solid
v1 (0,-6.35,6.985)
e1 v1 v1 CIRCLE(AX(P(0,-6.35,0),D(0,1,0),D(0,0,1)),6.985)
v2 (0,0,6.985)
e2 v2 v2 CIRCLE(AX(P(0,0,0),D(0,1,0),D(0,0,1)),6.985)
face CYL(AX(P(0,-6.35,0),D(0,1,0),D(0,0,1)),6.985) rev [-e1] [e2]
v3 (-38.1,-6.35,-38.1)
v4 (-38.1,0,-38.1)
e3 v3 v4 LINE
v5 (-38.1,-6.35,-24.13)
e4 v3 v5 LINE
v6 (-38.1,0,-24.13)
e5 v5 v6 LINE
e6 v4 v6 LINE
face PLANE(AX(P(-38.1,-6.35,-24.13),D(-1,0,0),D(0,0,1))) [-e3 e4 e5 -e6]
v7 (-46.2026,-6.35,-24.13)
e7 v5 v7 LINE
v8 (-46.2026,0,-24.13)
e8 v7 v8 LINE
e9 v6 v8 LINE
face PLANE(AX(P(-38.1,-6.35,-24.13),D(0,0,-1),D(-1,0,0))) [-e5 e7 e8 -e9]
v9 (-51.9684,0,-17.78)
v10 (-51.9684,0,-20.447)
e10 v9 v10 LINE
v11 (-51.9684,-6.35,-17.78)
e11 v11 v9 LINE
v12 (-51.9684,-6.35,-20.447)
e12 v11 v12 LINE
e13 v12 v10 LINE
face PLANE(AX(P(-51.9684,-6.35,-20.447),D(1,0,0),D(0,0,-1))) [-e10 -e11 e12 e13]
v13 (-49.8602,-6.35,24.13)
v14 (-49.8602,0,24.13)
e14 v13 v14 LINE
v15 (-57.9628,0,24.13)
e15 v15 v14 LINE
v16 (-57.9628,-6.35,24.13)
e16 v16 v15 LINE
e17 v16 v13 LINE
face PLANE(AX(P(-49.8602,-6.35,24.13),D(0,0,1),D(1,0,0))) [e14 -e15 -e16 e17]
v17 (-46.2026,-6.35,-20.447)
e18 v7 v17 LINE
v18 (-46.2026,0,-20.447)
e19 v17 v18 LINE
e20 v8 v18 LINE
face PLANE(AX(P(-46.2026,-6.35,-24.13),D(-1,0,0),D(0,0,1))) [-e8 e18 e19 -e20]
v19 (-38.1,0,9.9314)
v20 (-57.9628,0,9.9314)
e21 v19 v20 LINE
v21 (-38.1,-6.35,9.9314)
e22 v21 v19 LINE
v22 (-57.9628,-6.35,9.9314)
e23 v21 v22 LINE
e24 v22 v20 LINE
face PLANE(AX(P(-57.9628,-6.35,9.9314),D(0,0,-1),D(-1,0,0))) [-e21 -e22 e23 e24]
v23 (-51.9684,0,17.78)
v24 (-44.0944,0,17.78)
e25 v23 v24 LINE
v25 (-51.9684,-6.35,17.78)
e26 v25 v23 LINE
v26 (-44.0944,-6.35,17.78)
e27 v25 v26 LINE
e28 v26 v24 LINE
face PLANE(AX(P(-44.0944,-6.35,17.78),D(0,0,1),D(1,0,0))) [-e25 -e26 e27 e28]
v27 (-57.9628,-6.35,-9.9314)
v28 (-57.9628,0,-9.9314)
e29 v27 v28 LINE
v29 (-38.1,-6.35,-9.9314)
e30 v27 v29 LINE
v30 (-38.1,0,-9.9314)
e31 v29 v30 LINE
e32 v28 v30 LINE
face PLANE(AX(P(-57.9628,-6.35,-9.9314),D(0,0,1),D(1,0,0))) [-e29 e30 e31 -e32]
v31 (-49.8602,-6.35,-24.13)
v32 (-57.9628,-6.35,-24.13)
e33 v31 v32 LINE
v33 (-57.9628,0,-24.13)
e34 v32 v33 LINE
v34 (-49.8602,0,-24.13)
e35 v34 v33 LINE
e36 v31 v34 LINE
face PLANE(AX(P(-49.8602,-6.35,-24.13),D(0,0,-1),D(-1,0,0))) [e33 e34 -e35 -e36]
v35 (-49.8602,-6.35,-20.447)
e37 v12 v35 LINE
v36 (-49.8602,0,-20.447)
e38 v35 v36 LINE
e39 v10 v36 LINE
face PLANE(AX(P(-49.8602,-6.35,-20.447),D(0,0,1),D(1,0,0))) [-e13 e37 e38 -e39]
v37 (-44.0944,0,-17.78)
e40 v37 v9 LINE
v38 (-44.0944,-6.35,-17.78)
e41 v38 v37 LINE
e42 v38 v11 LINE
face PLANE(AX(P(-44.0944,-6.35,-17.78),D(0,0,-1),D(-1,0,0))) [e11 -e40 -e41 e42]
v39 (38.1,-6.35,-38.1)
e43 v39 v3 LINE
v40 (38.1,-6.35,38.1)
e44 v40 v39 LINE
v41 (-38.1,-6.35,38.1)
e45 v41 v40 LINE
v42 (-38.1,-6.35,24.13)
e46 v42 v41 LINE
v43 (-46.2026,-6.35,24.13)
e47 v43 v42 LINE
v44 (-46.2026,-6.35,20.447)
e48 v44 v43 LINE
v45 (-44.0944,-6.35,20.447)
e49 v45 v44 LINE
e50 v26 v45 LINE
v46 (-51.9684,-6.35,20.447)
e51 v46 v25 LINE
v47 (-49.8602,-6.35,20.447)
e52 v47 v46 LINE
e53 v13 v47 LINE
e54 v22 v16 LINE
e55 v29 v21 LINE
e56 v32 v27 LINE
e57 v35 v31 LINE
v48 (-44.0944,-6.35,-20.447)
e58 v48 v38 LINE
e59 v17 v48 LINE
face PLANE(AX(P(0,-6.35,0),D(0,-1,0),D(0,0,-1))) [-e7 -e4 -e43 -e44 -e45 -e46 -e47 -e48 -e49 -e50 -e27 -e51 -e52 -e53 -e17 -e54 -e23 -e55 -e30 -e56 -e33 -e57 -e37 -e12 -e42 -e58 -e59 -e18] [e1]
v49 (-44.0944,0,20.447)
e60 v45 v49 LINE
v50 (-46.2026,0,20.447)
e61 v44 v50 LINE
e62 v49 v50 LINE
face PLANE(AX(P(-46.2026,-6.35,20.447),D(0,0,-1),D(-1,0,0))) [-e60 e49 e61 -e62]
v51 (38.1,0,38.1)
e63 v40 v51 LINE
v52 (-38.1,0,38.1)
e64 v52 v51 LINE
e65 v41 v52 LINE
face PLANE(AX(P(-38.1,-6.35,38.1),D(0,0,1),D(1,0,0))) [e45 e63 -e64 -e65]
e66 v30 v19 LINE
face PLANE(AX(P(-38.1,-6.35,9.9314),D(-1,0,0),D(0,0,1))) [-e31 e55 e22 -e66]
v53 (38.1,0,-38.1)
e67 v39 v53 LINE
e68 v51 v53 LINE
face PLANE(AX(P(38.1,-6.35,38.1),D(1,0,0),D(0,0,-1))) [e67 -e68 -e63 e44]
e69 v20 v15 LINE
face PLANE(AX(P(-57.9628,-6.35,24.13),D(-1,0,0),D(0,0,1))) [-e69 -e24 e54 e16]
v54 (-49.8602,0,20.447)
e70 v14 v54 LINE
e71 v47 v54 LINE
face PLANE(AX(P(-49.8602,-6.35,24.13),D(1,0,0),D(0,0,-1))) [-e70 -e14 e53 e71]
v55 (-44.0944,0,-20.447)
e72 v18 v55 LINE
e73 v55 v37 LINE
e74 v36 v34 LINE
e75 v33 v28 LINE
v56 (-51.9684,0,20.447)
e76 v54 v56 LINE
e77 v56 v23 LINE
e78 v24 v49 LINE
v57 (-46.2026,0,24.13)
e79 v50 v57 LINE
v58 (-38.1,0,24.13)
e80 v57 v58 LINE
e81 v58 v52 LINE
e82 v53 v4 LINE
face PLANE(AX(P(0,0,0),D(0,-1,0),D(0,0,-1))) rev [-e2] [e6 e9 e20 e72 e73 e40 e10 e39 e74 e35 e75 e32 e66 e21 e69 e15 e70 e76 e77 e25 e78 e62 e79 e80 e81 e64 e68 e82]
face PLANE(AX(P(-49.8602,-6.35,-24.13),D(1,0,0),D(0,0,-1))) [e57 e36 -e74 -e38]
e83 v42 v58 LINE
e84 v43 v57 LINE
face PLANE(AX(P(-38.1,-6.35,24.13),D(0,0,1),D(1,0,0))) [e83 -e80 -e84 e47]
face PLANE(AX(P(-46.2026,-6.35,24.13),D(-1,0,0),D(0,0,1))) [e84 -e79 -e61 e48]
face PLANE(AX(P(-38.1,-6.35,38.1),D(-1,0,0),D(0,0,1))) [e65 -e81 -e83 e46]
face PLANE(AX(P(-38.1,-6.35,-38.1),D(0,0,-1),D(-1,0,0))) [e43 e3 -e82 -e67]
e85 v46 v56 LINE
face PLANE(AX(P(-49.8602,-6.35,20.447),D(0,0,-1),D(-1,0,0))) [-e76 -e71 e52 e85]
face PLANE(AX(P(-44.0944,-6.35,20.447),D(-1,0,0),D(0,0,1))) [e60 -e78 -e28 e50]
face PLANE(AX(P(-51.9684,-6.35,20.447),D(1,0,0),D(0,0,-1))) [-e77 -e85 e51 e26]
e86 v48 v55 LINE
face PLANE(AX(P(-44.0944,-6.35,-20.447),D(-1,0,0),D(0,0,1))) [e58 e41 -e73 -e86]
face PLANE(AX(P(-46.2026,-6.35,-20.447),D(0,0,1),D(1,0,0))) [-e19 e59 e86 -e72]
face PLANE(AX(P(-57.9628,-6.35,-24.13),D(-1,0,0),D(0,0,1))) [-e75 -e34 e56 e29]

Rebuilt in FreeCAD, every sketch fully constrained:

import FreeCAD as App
import Part
import Sketcher
from FreeCAD import Vector
Q = App.Units.Quantity

doc = App.newDocument("Part")
params = doc.addObject("Spreadsheet::Sheet", "Params")
for row, (alias, value) in enumerate([
    ("sketch1_diameter", "0.55 in"),
    ("sketch1_width", "3 in"),
    ("sketch1_width2", "0.31 in"),
    ("sketch1_height", "0.55 in"),
    ("sketch1_width3", "0.319 in"),
    ("pad1_length", "0.25 in"),
], start=1):
    params.set(f"A{row}", alias)
    params.set(f"B{row}", "=" + value)
    params.setAlias(f"B{row}", alias)

body = doc.addObject("PartDesign::Body", "Body")

# Sketch on XZ plane
sketch1 = body.newObject("Sketcher::SketchObject", "Sketch")
sketch1.AttachmentSupport = (doc.getObject("XZ_Plane"), [""])
sketch1.MapMode = "FlatFace"
sketch1.addGeometry([
    Part.LineSegment(Vector(-38.1, 38.1, 0), Vector(38.1, 38.1, 0)),  # 0
    Part.LineSegment(Vector(38.1, 38.1, 0), Vector(38.1, -38.1, 0)),  # 1
    Part.LineSegment(Vector(38.1, -38.1, 0), Vector(-38.1, -38.1, 0)),  # 2
    Part.LineSegment(Vector(-38.1, -38.1, 0), Vector(-38.1, -24.13, 0)),  # 3
    Part.LineSegment(Vector(-38.1, -24.13, 0), Vector(-46.2026, -24.13, 0)),  # 4
    Part.LineSegment(Vector(-46.2026, -24.13, 0), Vector(-46.2026, -20.447, 0)),  # 5
    Part.LineSegment(Vector(-46.2026, -20.447, 0), Vector(-44.0944, -20.447, 0)),  # 6
    Part.LineSegment(Vector(-44.0944, -20.447, 0), Vector(-44.0944, -17.78, 0)),  # 7
    Part.LineSegment(Vector(-44.0944, -17.78, 0), Vector(-51.9684, -17.78, 0)),  # 8
    Part.LineSegment(Vector(-51.9684, -17.78, 0), Vector(-51.9684, -20.447, 0)),  # 9
    Part.LineSegment(Vector(-51.9684, -20.447, 0), Vector(-49.8602, -20.447, 0)),  # 10
    Part.LineSegment(Vector(-49.8602, -20.447, 0), Vector(-49.8602, -24.13, 0)),  # 11
    Part.LineSegment(Vector(-49.8602, -24.13, 0), Vector(-57.9628, -24.13, 0)),  # 12
    Part.LineSegment(Vector(-57.9628, -24.13, 0), Vector(-57.9628, -9.9314, 0)),  # 13
    Part.LineSegment(Vector(-57.9628, -9.9314, 0), Vector(-38.1, -9.9314, 0)),  # 14
    Part.LineSegment(Vector(-38.1, -9.9314, 0), Vector(-38.1, 9.9314, 0)),  # 15
    Part.LineSegment(Vector(-38.1, 9.9314, 0), Vector(-57.9628, 9.9314, 0)),  # 16
    Part.LineSegment(Vector(-57.9628, 9.9314, 0), Vector(-57.9628, 24.13, 0)),  # 17
    Part.LineSegment(Vector(-57.9628, 24.13, 0), Vector(-49.8602, 24.13, 0)),  # 18
    Part.LineSegment(Vector(-49.8602, 24.13, 0), Vector(-49.8602, 20.447, 0)),  # 19
    Part.LineSegment(Vector(-49.8602, 20.447, 0), Vector(-51.9684, 20.447, 0)),  # 20
    Part.LineSegment(Vector(-51.9684, 20.447, 0), Vector(-51.9684, 17.78, 0)),  # 21
    Part.LineSegment(Vector(-51.9684, 17.78, 0), Vector(-44.0944, 17.78, 0)),  # 22
    Part.LineSegment(Vector(-44.0944, 17.78, 0), Vector(-44.0944, 20.447, 0)),  # 23
    Part.LineSegment(Vector(-44.0944, 20.447, 0), Vector(-46.2026, 20.447, 0)),  # 24
    Part.LineSegment(Vector(-46.2026, 20.447, 0), Vector(-46.2026, 24.13, 0)),  # 25
    Part.LineSegment(Vector(-46.2026, 24.13, 0), Vector(-38.1, 24.13, 0)),  # 26
    Part.LineSegment(Vector(-38.1, 24.13, 0), Vector(-38.1, 38.1, 0)),  # 27
    Part.Circle(Vector(0, 0, 0), Vector(0, 0, 1), 6.985),  # 28
], False)
sketch1.addConstraint([
    Sketcher.Constraint("Coincident", 0, 2, 1, 1),
    Sketcher.Constraint("Coincident", 1, 2, 2, 1),
    Sketcher.Constraint("Coincident", 2, 2, 3, 1),
    Sketcher.Constraint("Coincident", 3, 2, 4, 1),
    Sketcher.Constraint("Coincident", 4, 2, 5, 1),
    Sketcher.Constraint("Coincident", 5, 2, 6, 1),
    Sketcher.Constraint("Coincident", 6, 2, 7, 1),
    Sketcher.Constraint("Coincident", 7, 2, 8, 1),
    Sketcher.Constraint("Coincident", 8, 2, 9, 1),
    Sketcher.Constraint("Coincident", 9, 2, 10, 1),
    Sketcher.Constraint("Coincident", 10, 2, 11, 1),
    Sketcher.Constraint("Coincident", 11, 2, 12, 1),
    Sketcher.Constraint("Coincident", 12, 2, 13, 1),
    Sketcher.Constraint("Coincident", 13, 2, 14, 1),
    Sketcher.Constraint("Coincident", 14, 2, 15, 1),
    Sketcher.Constraint("Coincident", 15, 2, 16, 1),
    Sketcher.Constraint("Coincident", 16, 2, 17, 1),
    Sketcher.Constraint("Coincident", 17, 2, 18, 1),
    Sketcher.Constraint("Coincident", 18, 2, 19, 1),
    Sketcher.Constraint("Coincident", 19, 2, 20, 1),
    Sketcher.Constraint("Coincident", 20, 2, 21, 1),
    Sketcher.Constraint("Coincident", 21, 2, 22, 1),
    Sketcher.Constraint("Coincident", 22, 2, 23, 1),
    Sketcher.Constraint("Coincident", 23, 2, 24, 1),
    Sketcher.Constraint("Coincident", 24, 2, 25, 1),
    Sketcher.Constraint("Coincident", 25, 2, 26, 1),
    Sketcher.Constraint("Coincident", 26, 2, 27, 1),
    Sketcher.Constraint("Coincident", 27, 2, 0, 1),
    Sketcher.Constraint("Horizontal", 0),
    Sketcher.Constraint("Vertical", 1),
    Sketcher.Constraint("Horizontal", 2),
    Sketcher.Constraint("Vertical", 3),
    Sketcher.Constraint("Horizontal", 4),
    Sketcher.Constraint("Vertical", 5),
    Sketcher.Constraint("Horizontal", 6),
    Sketcher.Constraint("Vertical", 7),
    Sketcher.Constraint("Horizontal", 8),
    Sketcher.Constraint("Vertical", 9),
    Sketcher.Constraint("Horizontal", 10),
    Sketcher.Constraint("Vertical", 11),
    Sketcher.Constraint("Horizontal", 12),
    Sketcher.Constraint("Vertical", 13),
    Sketcher.Constraint("Horizontal", 14),
    Sketcher.Constraint("Vertical", 15),
    Sketcher.Constraint("Horizontal", 16),
    Sketcher.Constraint("Vertical", 17),
    Sketcher.Constraint("Horizontal", 18),
    Sketcher.Constraint("Vertical", 19),
    Sketcher.Constraint("Horizontal", 20),
    Sketcher.Constraint("Vertical", 21),
    Sketcher.Constraint("Horizontal", 22),
    Sketcher.Constraint("Vertical", 23),
    Sketcher.Constraint("Horizontal", 24),
    Sketcher.Constraint("Vertical", 25),
    Sketcher.Constraint("Horizontal", 26),
    Sketcher.Constraint("Vertical", 27),
    Sketcher.Constraint("Coincident", 28, 3, -1, 1),
    Sketcher.Constraint("Symmetric", 0, 2, 2, 2, -1, 1),
    Sketcher.Constraint("Symmetric", 13, 2, 16, 2, -1),
    Sketcher.Constraint("Symmetric", 11, 2, 18, 2, -1),
    Sketcher.Constraint("Symmetric", 9, 2, 20, 2, -1),
    Sketcher.Constraint("Symmetric", 7, 2, 22, 2, -1),
    Sketcher.Constraint("Symmetric", 5, 2, 24, 2, -1),
    Sketcher.Constraint("Symmetric", 3, 2, 26, 2, -1),
    Sketcher.Constraint("Horizontal", 6, 2, 9, 2),
    Sketcher.Constraint("Horizontal", 4, 2, 11, 2),
    Sketcher.Constraint("Vertical", 3, 2, 14, 2),
    Sketcher.Constraint("Equal", 6, 10),
    Sketcher.Constraint("Equal", 4, 12),
    Sketcher.Constraint("Equal", 2, 1),
    Sketcher.Constraint("Equal", 16, 15),
    Sketcher.Constraint("Diameter", 28, Q("0.55 in")),
    Sketcher.Constraint("DistanceX", 0, 1, 0, 2, Q("3 in")),
    Sketcher.Constraint("DistanceX", 8, 2, 8, 1, Q("0.31 in")),
    Sketcher.Constraint("DistanceY", 3, 1, 3, 2, Q("0.55 in")),
    Sketcher.Constraint("DistanceY", 7, 2, -1, 1, Q("0.7 in")),
    Sketcher.Constraint("DistanceX", 4, 2, 4, 1, Q("0.319 in")),
    Sketcher.Constraint("DistanceX", 6, 1, 6, 2, Q("0.083 in")),
    Sketcher.Constraint("DistanceY", 5, 1, 5, 2, Q("0.145 in")),
])
sketch1.setExpression("Constraints[71]", "Params.sketch1_diameter")
sketch1.setExpression("Constraints[72]", "Params.sketch1_width")
sketch1.setExpression("Constraints[73]", "Params.sketch1_width2")
sketch1.setExpression("Constraints[74]", "Params.sketch1_height")
sketch1.setExpression("Constraints[76]", "Params.sketch1_width3")
pad1 = body.newObject("PartDesign::Pad", "Pad")
pad1.Profile = sketch1
pad1.setExpression("Length", "Params.pad1_length")

doc.recompute()
